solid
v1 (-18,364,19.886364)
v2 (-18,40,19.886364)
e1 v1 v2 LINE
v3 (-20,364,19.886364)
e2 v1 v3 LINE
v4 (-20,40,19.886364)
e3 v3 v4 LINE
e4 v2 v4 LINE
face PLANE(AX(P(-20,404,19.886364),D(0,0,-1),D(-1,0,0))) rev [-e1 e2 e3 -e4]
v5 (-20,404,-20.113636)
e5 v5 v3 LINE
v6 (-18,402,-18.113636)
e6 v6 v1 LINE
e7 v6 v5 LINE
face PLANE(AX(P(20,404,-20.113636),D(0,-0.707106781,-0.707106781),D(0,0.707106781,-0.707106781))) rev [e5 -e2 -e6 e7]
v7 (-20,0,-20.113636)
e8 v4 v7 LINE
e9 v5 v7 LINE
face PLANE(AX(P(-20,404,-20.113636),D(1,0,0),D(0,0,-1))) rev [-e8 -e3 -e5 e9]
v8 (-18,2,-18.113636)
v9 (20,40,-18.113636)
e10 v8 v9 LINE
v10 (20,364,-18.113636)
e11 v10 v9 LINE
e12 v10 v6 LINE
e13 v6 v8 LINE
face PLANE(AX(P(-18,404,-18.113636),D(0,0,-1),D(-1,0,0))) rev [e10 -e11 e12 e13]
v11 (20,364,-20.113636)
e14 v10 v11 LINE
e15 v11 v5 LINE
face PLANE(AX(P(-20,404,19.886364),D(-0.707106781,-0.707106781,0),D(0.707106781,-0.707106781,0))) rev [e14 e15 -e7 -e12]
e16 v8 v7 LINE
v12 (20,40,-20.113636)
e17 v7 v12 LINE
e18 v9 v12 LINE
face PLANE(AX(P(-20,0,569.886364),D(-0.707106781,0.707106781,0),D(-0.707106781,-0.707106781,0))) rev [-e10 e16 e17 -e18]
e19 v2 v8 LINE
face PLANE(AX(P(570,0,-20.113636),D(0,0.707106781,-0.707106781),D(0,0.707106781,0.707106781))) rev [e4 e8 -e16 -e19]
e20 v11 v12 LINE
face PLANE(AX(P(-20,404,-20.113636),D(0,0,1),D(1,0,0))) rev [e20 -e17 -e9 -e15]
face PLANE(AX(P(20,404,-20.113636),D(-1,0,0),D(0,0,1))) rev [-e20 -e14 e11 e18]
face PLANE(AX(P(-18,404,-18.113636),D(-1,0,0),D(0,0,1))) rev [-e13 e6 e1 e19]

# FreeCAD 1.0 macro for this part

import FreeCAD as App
import Part
import Sketcher
from FreeCAD import Vector
Q = App.Units.Quantity

doc = App.newDocument("Part")
body = doc.addObject("PartDesign::Body", "Body")

# Sketch on XZ plane
sketch1 = body.newObject("Sketcher::SketchObject", "Sketch")
sketch1.AttachmentSupport = (doc.getObject("XZ_Plane"), [""])
sketch1.MapMode = "FlatFace"
sketch1.addGeometry([
    Part.LineSegment(Vector(20, -20.113636, 0), Vector(-20, -20.113636, 0)),  # 0
    Part.LineSegment(Vector(-20, -20.113636, 0), Vector(-20, 19.886364, 0)),  # 1
    Part.LineSegment(Vector(-20, 19.886364, 0), Vector(-18, 19.886364, 0)),  # 2
    Part.LineSegment(Vector(-18, 19.886364, 0), Vector(-18, -18.113636, 0)),  # 3
    Part.LineSegment(Vector(-18, -18.113636, 0), Vector(20, -18.113636, 0)),  # 4
    Part.LineSegment(Vector(20, -18.113636, 0), Vector(20, -20.113636, 0)),  # 5
], False)
sketch1.addConstraint([
    Sketcher.Constraint("Coincident", 0, 2, 1, 1),
    Sketcher.Constraint("Coincident", 1, 2, 2, 1),
    Sketcher.Constraint("Coincident", 2, 2, 3, 1),
    Sketcher.Constraint("Coincident", 3, 2, 4, 1),
    Sketcher.Constraint("Coincident", 4, 2, 5, 1),
    Sketcher.Constraint("Coincident", 5, 2, 0, 1),
    Sketcher.Constraint("Horizontal", 0),
    Sketcher.Constraint("Vertical", 1),
    Sketcher.Constraint("Horizontal", 2),
    Sketcher.Constraint("Vertical", 3),
    Sketcher.Constraint("Horizontal", 4),
    Sketcher.Constraint("Vertical", 5),
    Sketcher.Constraint("Equal", 0, 1),
    Sketcher.Constraint("Equal", 4, 3),
    Sketcher.Constraint("DistanceX", 0, 2, 0, 1, Q("40 mm")),
    Sketcher.Constraint("DistanceX", 2, 1, 2, 2, Q("2 mm")),
    Sketcher.Constraint("DistanceX", 0, 2, -1, 1, Q("20 mm")),
    Sketcher.Constraint("DistanceY", 0, 2, -1, 1, Q("20.113636 mm")),
])
pad1 = body.newObject("PartDesign::Pad", "Pad")
pad1.Profile = sketch1
pad1.Length = 404
pad1.Reversed = True

# Sketch on XY plane
sketch2 = body.newObject("Sketcher::SketchObject", "Sketch001")
sketch2.AttachmentSupport = (doc.getObject("XY_Plane"), [""])
sketch2.MapMode = "FlatFace"
sketch2.AttachmentOffset = App.Placement(Vector(0, 0, -20.113636), App.Rotation())
sketch2.addGeometry([
    Part.LineSegment(Vector(-20, 0, 0), Vector(20, 40, 0)),
    Part.LineSegment(Vector(20, 40, 0), Vector(20, 0, 0)),
    Part.LineSegment(Vector(20, 0, 0), Vector(-20, 0, 0)),
], False)
sketch2.addConstraint([
    Sketcher.Constraint("Coincident", 0, 2, 1, 1),
    Sketcher.Constraint("Coincident", 1, 2, 2, 1),
    Sketcher.Constraint("Coincident", 2, 2, 0, 1),
    Sketcher.Constraint("Vertical", 1),
    Sketcher.Constraint("Horizontal", 2),
    Sketcher.Constraint("Symmetric", 1, 2, 2, 2, -1, 1),
    Sketcher.Constraint("Equal", 2, 1),
    Sketcher.Constraint("DistanceX", 2, 2, 2, 1, Q("40 mm")),
])
pocket1 = body.newObject("PartDesign::Pocket", "Pocket")
pocket1.Profile = sketch2
pocket1.Length = 590
pocket1.Reversed = True

# Sketch on YZ plane
sketch3 = body.newObject("Sketcher::SketchObject", "Sketch002")
sketch3.AttachmentSupport = (doc.getObject("YZ_Plane"), [""])
sketch3.MapMode = "FlatFace"
sketch3.AttachmentOffset = App.Placement(Vector(0, 0, -20), App.Rotation())
sketch3.addGeometry([
    Part.LineSegment(Vector(40, 19.886364, 0), Vector(0, -20.113636, 0)),
    Part.LineSegment(Vector(0, -20.113636, 0), Vector(0, 19.886364, 0)),
    Part.LineSegment(Vector(0, 19.886364, 0), Vector(40, 19.886364, 0)),
], False)
sketch3.addConstraint([
    Sketcher.Constraint("Coincident", 0, 2, 1, 1),
    Sketcher.Constraint("Coincident", 1, 2, 2, 1),
    Sketcher.Constraint("Coincident", 2, 2, 0, 1),
    Sketcher.Constraint("Vertical", 1),
    Sketcher.Constraint("Horizontal", 2),
    Sketcher.Constraint("PointOnObject", 0, 2, -2),
    Sketcher.Constraint("Equal", 2, 1),
    Sketcher.Constraint("DistanceX", 2, 1, 2, 2, Q("40 mm")),
    Sketcher.Constraint("DistanceY", 0, 2, -1, 1, Q("20.113636 mm")),
])
pocket2 = body.newObject("PartDesign::Pocket", "Pocket001")
pocket2.Profile = sketch3
pocket2.Length = 590
pocket2.Reversed = True

# Sketch on YZ plane
sketch4 = body.newObject("Sketcher::SketchObject", "Sketch003")
sketch4.AttachmentSupport = (doc.getObject("YZ_Plane"), [""])
sketch4.MapMode = "FlatFace"
sketch4.AttachmentOffset = App.Placement(Vector(0, 0, -20), App.Rotation())
sketch4.addGeometry([
    Part.LineSegment(Vector(404, -20.113636, 0), Vector(364, 19.886364, 0)),
    Part.LineSegment(Vector(364, 19.886364, 0), Vector(404, 19.886364, 0)),
    Part.LineSegment(Vector(404, 19.886364, 0), Vector(404, -20.113636, 0)),
], False)
sketch4.addConstraint([
    Sketcher.Constraint("Coincident", 0, 2, 1, 1),
    Sketcher.Constraint("Coincident", 1, 2, 2, 1),
    Sketcher.Constraint("Coincident", 2, 2, 0, 1),
    Sketcher.Constraint("Horizontal", 1),
    Sketcher.Constraint("Vertical", 2),
    Sketcher.Constraint("Equal", 1, 2),
    Sketcher.Constraint("DistanceX", 1, 1, 1, 2, Q("40 mm")),
    Sketcher.Constraint("DistanceX", -1, 1, 0, 2, Q("364 mm")),
    Sketcher.Constraint("DistanceY", -1, 1, 0, 2, Q("19.886364 mm")),
])
pocket3 = body.newObject("PartDesign::Pocket", "Pocket002")
pocket3.Profile = sketch4
pocket3.Type = "ThroughAll"
pocket3.Reversed = True

# Sketch on XY plane
sketch5 = body.newObject("Sketcher::SketchObject", "Sketch004")
sketch5.AttachmentSupport = (doc.getObject("XY_Plane"), [""])
sketch5.MapMode = "FlatFace"
sketch5.AttachmentOffset = App.Placement(Vector(0, 0, -20.113636), App.Rotation())
sketch5.addGeometry([
    Part.LineSegment(Vector(20, 364, 0), Vector(-20, 404, 0)),
    Part.LineSegment(Vector(-20, 404, 0), Vector(20, 404, 0)),
    Part.LineSegment(Vector(20, 404, 0), Vector(20, 364, 0)),
], False)
sketch5.addConstraint([
    Sketcher.Constraint("Coincident", 0, 2, 1, 1),
    Sketcher.Constraint("Coincident", 1, 2, 2, 1),
    Sketcher.Constraint("Coincident", 2, 2, 0, 1),
    Sketcher.Constraint("Horizontal", 1),
    Sketcher.Constraint("Vertical", 2),
    Sketcher.Constraint("Equal", 1, 2),
    Sketcher.Constraint("DistanceX", 1, 1, 1, 2, Q("40 mm")),
    Sketcher.Constraint("DistanceX", 0, 2, -1, 1, Q("20 mm")),
    Sketcher.Constraint("DistanceY", -1, 1, 0, 2, Q("404 mm")),
])
pocket4 = body.newObject("PartDesign::Pocket", "Pocket003")
pocket4.Profile = sketch5
pocket4.Type = "ThroughAll"
pocket4.Reversed = True

doc.recompute()
